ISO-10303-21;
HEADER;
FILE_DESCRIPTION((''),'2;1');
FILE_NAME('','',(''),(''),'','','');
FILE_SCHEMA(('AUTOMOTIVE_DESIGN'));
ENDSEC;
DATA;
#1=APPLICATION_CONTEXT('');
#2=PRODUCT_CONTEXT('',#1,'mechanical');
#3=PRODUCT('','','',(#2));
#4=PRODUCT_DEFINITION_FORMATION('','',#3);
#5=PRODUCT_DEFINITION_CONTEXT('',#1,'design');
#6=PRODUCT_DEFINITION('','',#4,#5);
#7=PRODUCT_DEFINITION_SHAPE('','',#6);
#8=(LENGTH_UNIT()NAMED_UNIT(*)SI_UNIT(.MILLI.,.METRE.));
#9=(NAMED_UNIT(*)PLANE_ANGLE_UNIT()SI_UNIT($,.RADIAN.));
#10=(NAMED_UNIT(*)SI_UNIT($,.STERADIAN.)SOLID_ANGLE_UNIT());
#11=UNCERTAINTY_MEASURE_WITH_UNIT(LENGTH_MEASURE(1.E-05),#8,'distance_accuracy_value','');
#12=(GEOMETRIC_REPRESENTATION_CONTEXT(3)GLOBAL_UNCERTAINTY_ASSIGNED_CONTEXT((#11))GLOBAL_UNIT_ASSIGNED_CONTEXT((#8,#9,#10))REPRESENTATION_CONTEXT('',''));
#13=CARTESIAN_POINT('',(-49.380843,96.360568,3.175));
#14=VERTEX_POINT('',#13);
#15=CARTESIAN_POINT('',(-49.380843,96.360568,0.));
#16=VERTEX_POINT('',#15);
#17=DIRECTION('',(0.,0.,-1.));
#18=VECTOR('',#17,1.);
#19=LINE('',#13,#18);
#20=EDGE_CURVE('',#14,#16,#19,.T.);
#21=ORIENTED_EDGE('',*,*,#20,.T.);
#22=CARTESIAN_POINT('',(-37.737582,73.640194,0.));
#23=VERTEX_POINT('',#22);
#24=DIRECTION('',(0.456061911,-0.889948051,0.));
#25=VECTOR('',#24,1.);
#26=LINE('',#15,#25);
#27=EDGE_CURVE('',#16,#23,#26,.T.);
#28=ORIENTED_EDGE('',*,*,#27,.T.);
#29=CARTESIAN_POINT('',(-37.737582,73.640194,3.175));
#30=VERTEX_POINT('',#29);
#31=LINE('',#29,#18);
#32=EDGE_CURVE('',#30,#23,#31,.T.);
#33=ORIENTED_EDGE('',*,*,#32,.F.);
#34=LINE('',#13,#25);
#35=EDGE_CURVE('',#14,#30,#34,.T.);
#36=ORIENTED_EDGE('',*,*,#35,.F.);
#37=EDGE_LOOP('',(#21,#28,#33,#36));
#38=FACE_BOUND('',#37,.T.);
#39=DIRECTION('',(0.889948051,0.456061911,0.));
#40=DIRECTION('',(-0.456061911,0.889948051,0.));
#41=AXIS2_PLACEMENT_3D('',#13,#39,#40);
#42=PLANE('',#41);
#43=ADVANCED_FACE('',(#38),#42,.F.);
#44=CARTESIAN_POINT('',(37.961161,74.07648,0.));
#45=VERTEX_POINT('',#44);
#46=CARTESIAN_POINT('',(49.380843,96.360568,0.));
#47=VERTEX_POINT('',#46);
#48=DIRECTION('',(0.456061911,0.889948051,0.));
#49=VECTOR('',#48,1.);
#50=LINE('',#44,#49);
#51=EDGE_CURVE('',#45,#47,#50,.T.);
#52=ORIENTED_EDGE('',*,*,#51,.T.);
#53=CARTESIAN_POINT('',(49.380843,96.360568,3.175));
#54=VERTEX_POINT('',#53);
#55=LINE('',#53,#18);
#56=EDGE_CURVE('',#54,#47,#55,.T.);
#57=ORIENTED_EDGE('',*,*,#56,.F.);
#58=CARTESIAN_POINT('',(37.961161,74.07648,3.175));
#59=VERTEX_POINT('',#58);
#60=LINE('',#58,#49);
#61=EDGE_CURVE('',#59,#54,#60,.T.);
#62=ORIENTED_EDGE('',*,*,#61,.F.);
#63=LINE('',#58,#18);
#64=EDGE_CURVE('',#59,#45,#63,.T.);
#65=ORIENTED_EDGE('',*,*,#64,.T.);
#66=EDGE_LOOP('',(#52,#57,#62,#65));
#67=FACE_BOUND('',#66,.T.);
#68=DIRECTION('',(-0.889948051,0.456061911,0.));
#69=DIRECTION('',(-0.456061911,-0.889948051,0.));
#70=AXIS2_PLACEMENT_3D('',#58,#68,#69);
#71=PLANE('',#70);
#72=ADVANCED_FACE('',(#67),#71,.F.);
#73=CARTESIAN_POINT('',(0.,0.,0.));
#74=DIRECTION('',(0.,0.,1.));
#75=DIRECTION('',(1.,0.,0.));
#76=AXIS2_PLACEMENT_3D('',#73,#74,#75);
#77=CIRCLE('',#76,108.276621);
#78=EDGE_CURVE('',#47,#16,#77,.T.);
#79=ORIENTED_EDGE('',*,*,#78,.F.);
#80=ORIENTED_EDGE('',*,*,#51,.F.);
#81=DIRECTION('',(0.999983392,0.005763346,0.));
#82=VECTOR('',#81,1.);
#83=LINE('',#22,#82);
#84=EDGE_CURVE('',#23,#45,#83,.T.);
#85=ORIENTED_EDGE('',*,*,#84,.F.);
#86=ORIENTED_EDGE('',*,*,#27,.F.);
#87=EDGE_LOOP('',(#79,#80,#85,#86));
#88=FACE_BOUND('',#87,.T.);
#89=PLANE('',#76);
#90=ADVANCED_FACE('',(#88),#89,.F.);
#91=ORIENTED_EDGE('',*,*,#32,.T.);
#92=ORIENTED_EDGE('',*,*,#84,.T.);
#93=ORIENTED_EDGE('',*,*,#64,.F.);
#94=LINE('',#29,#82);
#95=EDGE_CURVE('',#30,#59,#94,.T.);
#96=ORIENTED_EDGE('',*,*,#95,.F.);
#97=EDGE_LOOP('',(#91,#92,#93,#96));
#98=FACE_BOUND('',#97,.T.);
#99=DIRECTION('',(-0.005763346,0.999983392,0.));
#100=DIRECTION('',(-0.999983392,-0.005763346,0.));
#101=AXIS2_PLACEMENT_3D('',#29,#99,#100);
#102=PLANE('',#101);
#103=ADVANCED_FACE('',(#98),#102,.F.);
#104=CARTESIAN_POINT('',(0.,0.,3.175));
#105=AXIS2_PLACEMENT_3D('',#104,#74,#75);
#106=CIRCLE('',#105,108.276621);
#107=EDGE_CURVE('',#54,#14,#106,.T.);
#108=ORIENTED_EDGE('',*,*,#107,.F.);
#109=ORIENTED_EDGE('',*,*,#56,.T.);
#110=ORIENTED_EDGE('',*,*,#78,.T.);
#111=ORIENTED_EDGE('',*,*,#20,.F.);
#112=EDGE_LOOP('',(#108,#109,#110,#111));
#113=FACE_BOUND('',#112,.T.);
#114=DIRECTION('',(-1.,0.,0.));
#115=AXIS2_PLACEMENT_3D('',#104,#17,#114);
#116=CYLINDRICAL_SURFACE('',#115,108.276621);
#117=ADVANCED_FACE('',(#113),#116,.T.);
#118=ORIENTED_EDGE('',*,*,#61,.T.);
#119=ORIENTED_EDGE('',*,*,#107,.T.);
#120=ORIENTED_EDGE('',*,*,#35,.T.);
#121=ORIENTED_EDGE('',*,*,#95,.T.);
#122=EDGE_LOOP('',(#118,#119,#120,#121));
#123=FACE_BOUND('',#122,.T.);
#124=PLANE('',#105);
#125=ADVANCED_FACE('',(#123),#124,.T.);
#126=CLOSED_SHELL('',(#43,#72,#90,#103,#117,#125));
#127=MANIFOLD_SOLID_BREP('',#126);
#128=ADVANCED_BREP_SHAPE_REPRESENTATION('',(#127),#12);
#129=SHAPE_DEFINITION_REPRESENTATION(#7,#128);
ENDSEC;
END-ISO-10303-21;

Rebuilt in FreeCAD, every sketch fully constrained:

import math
import FreeCAD as App
import Part
import Sketcher

V = App.Vector
Q = App.Units.Quantity

doc = App.newDocument("Part")
body = doc.addObject("PartDesign::Body", "Body")

# Sketch on XY plane
sketch1 = body.newObject("Sketcher::SketchObject", "Sketch")
sketch1.AttachmentSupport = (doc.getObject("XY_Plane"), [""])
sketch1.MapMode = "FlatFace"
sketch1.addGeometry([
    Part.LineSegment(V(-49, 96, 0), V(-38, 74, 0)),
    Part.LineSegment(V(-38, 74, 0), V(38, 74, 0)),
    Part.LineSegment(V(38, 74, 0), V(49, 96, 0)),
    Part.ArcOfCircle(Part.Circle(V(0, 0, 0), V(0, 0, 1), 108), math.radians(63), math.radians(117)),
], False)
sketch1.addConstraint([
    Sketcher.Constraint("Coincident", 0, 2, 1, 1),
    Sketcher.Constraint("Coincident", 1, 2, 2, 1),
    Sketcher.Constraint("Coincident", 2, 2, 3, 1),
    Sketcher.Constraint("Coincident", 3, 2, 0, 1),
    Sketcher.Constraint("Coincident", 3, 3, -1, 1),
    Sketcher.Constraint("Horizontal", 2, 2, 3, 2),
    Sketcher.Constraint("Distance", 1, Q("75.7 mm")),
    Sketcher.Constraint("Distance", 0, Q("25.53 mm")),
    Sketcher.Constraint("Radius", 3, Q("108.276621 mm")),
    Sketcher.Constraint("DistanceX", -1, 1, 1, 2, Q("37.961161 mm")),
    Sketcher.Constraint("DistanceY", -1, 1, 1, 2, Q("74.07648 mm")),
    Sketcher.Constraint("DistanceY", 1, 2, 2, 2, Q("22.284088 mm")),
])
pad1 = body.newObject("PartDesign::Pad", "Pad")
pad1.Profile = sketch1
pad1.Length = 3.175

doc.recompute()
